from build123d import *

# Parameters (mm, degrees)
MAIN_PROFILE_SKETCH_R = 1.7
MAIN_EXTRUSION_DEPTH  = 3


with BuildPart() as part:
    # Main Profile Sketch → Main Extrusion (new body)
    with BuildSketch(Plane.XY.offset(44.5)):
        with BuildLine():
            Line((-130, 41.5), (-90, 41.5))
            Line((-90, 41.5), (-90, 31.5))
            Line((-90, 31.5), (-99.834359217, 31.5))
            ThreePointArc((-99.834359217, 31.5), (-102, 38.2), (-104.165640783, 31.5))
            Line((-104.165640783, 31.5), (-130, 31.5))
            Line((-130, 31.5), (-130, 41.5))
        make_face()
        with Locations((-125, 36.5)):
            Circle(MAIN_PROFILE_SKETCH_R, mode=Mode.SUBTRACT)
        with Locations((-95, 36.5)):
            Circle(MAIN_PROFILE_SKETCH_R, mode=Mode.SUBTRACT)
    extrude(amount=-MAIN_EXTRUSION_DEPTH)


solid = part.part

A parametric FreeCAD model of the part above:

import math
import FreeCAD as App
import Part
import Sketcher

doc = App.newDocument("Part")
body = doc.addObject("PartDesign::Body", "Body")

# Sketch on XY plane
sketch1 = body.newObject("Sketcher::SketchObject", "Sketch")
sketch1.AttachmentSupport = (doc.getObject("XY_Plane"), [""])
sketch1.MapMode = "FlatFace"
sketch1.AttachmentOffset = App.Placement(App.Vector(0, 0, 44.5), App.Rotation())
sketch1.addGeometry(Part.LineSegment(App.Vector(-90, 41.5, 0), App.Vector(-130, 41.5, 0)), False)
sketch1.addGeometry(Part.LineSegment(App.Vector(-130, 41.5, 0), App.Vector(-130, 31.5, 0)), False)
sketch1.addGeometry(Part.LineSegment(App.Vector(-130, 31.5, 0), App.Vector(-104.2, 31.5, 0)), False)
sketch1.addGeometry(Part.ArcOfCircle(Part.Circle(App.Vector(-102, 34.5, 0), App.Vector(0, 0, 1), 3.7), math.radians(-54), math.radians(234)), False)
sketch1.addGeometry(Part.LineSegment(App.Vector(-99.8, 31.5, 0), App.Vector(-90, 31.5, 0)), False)
sketch1.addGeometry(Part.LineSegment(App.Vector(-90, 31.5, 0), App.Vector(-90, 41.5, 0)), False)
sketch1.addGeometry(Part.Circle(App.Vector(-95, 36.5, 0), App.Vector(0, 0, 1), 1.7), False)
sketch1.addGeometry(Part.Circle(App.Vector(-125, 36.5, 0), App.Vector(0, 0, 1), 1.7), False)
sketch1.addConstraint(Sketcher.Constraint("Coincident", 0, 2, 1, 1))
sketch1.addConstraint(Sketcher.Constraint("Coincident", 1, 2, 2, 1))
sketch1.addConstraint(Sketcher.Constraint("Coincident", 2, 2, 3, 2))
sketch1.addConstraint(Sketcher.Constraint("Coincident", 3, 1, 4, 1))
sketch1.addConstraint(Sketcher.Constraint("Coincident", 4, 2, 5, 1))
sketch1.addConstraint(Sketcher.Constraint("Coincident", 5, 2, 0, 1))
sketch1.addConstraint(Sketcher.Constraint("Horizontal", 0))
sketch1.addConstraint(Sketcher.Constraint("Vertical", 1))
sketch1.addConstraint(Sketcher.Constraint("Horizontal", 2))
sketch1.addConstraint(Sketcher.Constraint("Horizontal", 4))
sketch1.addConstraint(Sketcher.Constraint("Vertical", 5))
sketch1.addConstraint(Sketcher.Constraint("Equal", 6, 7))
sketch1.addConstraint(Sketcher.Constraint("Horizontal", 6, 3, 7, 3))
sketch1.addConstraint(Sketcher.Constraint("Horizontal", 2, 2, 3, 1))
sketch1.addConstraint(Sketcher.Constraint("Diameter", 6, 3.4))
sketch1.addConstraint(Sketcher.Constraint("Radius", 3, 3.7))
sketch1.addConstraint(Sketcher.Constraint("DistanceX", 0, 2, 0, 1, 40.0))
sketch1.addConstraint(Sketcher.Constraint("DistanceY", 1, 2, 1, 1, 10.0))
sketch1.addConstraint(Sketcher.Constraint("DistanceX", 3, 3, -1, 1, 102.0))
sketch1.addConstraint(Sketcher.Constraint("DistanceX", 6, 3, -1, 1, 95.0))
sketch1.addConstraint(Sketcher.Constraint("DistanceX", 7, 3, -1, 1, 125.0))
sketch1.addConstraint(Sketcher.Constraint("DistanceX", 0, 2, -1, 1, 130.0))
sketch1.addConstraint(Sketcher.Constraint("DistanceY", 3, 3, 6, 3, 2.0))
sketch1.addConstraint(Sketcher.Constraint("DistanceY", 7, 3, 0, 2, 5.0))
sketch1.addConstraint(Sketcher.Constraint("DistanceY", -1, 1, 3, 3, 34.5))
pad1 = body.newObject("PartDesign::Pad", "Pad")
pad1.Profile = sketch1
pad1.Length = 3
pad1.Reversed = True

doc.recompute()
